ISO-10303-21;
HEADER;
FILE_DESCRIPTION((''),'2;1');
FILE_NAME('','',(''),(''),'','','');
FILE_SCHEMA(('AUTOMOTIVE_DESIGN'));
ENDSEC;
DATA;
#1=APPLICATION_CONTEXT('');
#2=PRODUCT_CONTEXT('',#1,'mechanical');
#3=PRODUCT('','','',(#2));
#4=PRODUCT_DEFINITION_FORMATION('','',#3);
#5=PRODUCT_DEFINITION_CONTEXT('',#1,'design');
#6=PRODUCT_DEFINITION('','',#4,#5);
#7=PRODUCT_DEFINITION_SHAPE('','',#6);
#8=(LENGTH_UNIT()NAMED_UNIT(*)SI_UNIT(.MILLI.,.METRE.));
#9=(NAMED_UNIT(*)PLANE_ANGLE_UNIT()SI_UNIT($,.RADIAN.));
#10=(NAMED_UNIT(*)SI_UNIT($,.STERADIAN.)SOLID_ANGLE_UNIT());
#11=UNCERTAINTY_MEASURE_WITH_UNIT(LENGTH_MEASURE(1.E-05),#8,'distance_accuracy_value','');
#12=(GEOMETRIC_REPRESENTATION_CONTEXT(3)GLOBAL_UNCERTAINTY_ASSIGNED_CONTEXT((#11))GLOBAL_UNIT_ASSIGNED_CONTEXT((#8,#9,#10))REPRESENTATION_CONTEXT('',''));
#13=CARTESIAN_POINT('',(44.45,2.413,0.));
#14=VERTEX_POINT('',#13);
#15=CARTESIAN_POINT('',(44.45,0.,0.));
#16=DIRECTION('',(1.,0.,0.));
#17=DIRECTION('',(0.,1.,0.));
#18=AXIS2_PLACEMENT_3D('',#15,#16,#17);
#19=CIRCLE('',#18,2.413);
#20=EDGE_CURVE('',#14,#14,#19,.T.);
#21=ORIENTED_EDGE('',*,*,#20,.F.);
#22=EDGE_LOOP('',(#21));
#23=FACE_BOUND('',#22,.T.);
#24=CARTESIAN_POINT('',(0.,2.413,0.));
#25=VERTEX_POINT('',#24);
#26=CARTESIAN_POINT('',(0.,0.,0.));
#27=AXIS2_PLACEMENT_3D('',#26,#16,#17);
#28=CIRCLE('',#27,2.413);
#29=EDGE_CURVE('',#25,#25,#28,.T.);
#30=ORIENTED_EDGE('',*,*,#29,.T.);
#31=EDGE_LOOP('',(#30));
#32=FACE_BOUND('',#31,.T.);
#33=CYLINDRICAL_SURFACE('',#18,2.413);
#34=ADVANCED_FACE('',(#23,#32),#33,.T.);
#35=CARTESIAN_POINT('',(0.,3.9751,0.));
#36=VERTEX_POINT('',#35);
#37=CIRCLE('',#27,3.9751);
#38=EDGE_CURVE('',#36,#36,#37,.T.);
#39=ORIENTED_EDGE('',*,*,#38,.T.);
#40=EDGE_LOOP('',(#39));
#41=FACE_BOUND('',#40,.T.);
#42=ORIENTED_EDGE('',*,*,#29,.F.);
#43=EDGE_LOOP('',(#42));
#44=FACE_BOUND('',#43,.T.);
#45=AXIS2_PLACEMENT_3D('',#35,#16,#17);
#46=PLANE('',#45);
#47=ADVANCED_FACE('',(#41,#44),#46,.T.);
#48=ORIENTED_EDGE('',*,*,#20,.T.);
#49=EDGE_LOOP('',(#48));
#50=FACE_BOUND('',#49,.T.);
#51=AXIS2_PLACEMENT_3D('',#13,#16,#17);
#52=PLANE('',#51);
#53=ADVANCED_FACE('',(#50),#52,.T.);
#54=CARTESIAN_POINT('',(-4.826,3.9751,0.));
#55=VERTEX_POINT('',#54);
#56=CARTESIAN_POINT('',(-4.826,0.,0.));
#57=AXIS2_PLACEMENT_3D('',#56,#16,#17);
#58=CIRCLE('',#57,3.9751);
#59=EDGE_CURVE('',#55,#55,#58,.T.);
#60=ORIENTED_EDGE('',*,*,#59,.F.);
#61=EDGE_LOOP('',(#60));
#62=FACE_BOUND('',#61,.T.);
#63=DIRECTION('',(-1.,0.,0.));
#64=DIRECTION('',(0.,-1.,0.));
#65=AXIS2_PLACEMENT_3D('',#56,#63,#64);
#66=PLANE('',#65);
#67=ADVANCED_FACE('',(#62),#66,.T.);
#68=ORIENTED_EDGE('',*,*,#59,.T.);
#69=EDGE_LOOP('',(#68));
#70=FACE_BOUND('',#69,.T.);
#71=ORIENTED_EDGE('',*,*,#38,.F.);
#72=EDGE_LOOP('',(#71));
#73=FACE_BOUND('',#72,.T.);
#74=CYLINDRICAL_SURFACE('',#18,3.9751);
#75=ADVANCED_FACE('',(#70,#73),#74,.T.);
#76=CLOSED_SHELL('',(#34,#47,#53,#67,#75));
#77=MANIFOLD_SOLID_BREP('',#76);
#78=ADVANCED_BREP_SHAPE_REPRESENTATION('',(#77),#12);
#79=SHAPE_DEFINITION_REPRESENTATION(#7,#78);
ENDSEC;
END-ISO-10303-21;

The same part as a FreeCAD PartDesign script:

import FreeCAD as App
import Part
import Sketcher
from FreeCAD import Vector
Q = App.Units.Quantity

doc = App.newDocument("Part")
params = doc.addObject("Spreadsheet::Sheet", "Params")
for row, (alias, value) in enumerate([
    ("sketch1_width", "1.75 in"),
    ("sketch1_width2", "0.19 in"),
    ("sketch1_height", "0.095 in"),
    ("revolution_angle", "360 deg"),
], start=1):
    params.set(f"A{row}", alias)
    params.set(f"B{row}", "=" + value)
    params.setAlias(f"B{row}", alias)

body = doc.addObject("PartDesign::Body", "Body")

# Sketch on XY plane
sketch1 = body.newObject("Sketcher::SketchObject", "Sketch")
sketch1.AttachmentSupport = (doc.getObject("XY_Plane"), [""])
sketch1.MapMode = "FlatFace"
sketch1.addGeometry([
    Part.LineSegment(Vector(44.5, 2.4, 0), Vector(0, 2.4, 0)),  # 0
    Part.LineSegment(Vector(0, 2.4, 0), Vector(0, 4, 0)),  # 1
    Part.LineSegment(Vector(0, 4, 0), Vector(-4.8, 4, 0)),  # 2
    Part.LineSegment(Vector(-4.8, 4, 0), Vector(-4.8, 0, 0)),  # 3
    Part.LineSegment(Vector(-4.8, 0, 0), Vector(44.5, 0, 0)),  # 4
    Part.LineSegment(Vector(44.5, 0, 0), Vector(44.5, 2.4, 0)),  # 5
], False)
sketch1.addConstraint([
    Sketcher.Constraint("Coincident", 0, 2, 1, 1),
    Sketcher.Constraint("Coincident", 1, 2, 2, 1),
    Sketcher.Constraint("Coincident", 2, 2, 3, 1),
    Sketcher.Constraint("Coincident", 3, 2, 4, 1),
    Sketcher.Constraint("Coincident", 4, 2, 5, 1),
    Sketcher.Constraint("Coincident", 5, 2, 0, 1),
    Sketcher.Constraint("Horizontal", 0),
    Sketcher.Constraint("Vertical", 1),
    Sketcher.Constraint("Horizontal", 2),
    Sketcher.Constraint("Vertical", 3),
    Sketcher.Constraint("Horizontal", 4),
    Sketcher.Constraint("Vertical", 5),
    Sketcher.Constraint("PointOnObject", 0, 2, -2),
    Sketcher.Constraint("PointOnObject", 3, 2, -1),
    Sketcher.Constraint("DistanceX", 0, 2, 0, 1, Q("1.75 in")),
    Sketcher.Constraint("DistanceX", 2, 2, 2, 1, Q("0.19 in")),
    Sketcher.Constraint("DistanceY", 5, 1, 5, 2, Q("0.095 in")),
    Sketcher.Constraint("DistanceY", 1, 1, 1, 2, Q("0.0615 in")),
])
sketch1.setExpression("Constraints[14]", "Params.sketch1_width")
sketch1.setExpression("Constraints[15]", "Params.sketch1_width2")
sketch1.setExpression("Constraints[16]", "Params.sketch1_height")
revolution = body.newObject("PartDesign::Revolution", "Revolution")
revolution.Profile = sketch1
revolution.ReferenceAxis = (sketch1, ["H_Axis"])
revolution.setExpression("Angle", "Params.revolution_angle")

doc.recompute()
